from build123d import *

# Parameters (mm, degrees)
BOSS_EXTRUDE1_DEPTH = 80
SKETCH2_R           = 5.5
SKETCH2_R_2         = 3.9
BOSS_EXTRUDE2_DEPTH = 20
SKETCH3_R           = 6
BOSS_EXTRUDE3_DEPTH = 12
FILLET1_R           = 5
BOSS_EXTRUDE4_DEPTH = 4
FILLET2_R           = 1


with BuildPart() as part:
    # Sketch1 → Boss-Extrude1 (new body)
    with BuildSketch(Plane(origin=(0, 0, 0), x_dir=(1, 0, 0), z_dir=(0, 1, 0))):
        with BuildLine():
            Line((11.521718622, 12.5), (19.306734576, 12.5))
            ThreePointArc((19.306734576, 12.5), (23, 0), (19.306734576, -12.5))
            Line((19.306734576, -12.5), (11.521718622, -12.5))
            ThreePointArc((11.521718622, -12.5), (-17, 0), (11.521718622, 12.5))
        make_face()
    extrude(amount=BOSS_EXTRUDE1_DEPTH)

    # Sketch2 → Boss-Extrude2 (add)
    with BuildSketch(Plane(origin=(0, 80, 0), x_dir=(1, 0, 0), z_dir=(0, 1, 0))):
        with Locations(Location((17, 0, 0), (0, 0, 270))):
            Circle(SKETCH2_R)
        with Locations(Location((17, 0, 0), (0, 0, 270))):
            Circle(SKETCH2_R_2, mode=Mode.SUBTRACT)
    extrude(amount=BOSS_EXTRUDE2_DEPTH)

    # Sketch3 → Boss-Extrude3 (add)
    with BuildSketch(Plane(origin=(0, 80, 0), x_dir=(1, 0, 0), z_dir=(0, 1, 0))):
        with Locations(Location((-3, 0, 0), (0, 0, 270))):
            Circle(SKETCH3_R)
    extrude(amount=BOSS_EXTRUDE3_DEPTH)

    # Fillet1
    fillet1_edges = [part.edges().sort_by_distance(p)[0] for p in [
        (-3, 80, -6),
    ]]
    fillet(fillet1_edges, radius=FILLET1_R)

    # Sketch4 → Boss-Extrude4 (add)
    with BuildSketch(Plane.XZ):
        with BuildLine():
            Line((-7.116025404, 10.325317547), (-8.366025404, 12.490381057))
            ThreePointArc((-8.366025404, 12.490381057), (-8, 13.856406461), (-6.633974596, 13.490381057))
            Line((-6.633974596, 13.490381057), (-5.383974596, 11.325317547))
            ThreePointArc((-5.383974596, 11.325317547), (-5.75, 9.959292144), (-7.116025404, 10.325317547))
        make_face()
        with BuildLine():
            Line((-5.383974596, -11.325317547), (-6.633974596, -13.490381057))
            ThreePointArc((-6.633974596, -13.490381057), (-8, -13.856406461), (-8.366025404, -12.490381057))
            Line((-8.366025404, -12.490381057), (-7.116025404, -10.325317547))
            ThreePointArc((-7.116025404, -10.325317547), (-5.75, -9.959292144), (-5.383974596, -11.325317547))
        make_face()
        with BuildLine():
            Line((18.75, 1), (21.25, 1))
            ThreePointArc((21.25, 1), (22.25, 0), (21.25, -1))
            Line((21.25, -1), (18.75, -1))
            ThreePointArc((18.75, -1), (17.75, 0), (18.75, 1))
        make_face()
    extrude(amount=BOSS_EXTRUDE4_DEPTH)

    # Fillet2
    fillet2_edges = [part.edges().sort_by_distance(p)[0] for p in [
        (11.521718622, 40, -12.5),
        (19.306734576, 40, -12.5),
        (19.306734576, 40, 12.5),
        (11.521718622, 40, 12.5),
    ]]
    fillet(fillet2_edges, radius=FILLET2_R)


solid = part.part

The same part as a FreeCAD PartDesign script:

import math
import FreeCAD as App
import Part
import Sketcher
Q = App.Units.Quantity


def edges_at(feature, points):
    """Names of the edges that pass closest to the given points."""
    edges = feature.Shape.Edges
    near = lambda p: min(range(len(edges)), key=lambda i: edges[i].distToShape(Part.Vertex(*p))[0])
    return sorted({f"Edge{near(p) + 1}" for p in points})

doc = App.newDocument("Part")
body = doc.addObject("PartDesign::Body", "Body")

sketch1 = body.newObject("Sketcher::SketchObject", "Sketch")
sketch1.AttachmentSupport = (doc.getObject("XZ_Plane"), [""])
sketch1.MapMode = "FlatFace"
sketch1.addGeometry([
    Part.LineSegment(App.Vector(19, -12, 0), App.Vector(12, -12, 0)),
    Part.ArcOfCircle(Part.Circle(App.Vector(0, 0, 0), App.Vector(0, 0, 1), 17), math.radians(47), math.radians(313)),
    Part.LineSegment(App.Vector(12, 12, 0), App.Vector(19, 12, 0)),
    Part.ArcOfCircle(Part.Circle(App.Vector(0, 0, 0), App.Vector(0, 0, 1), 23), math.radians(-33), math.radians(33)),
], False)
sketch1.addConstraint([
    Sketcher.Constraint("Coincident", 0, 2, 1, 2),
    Sketcher.Constraint("Coincident", 1, 1, 2, 1),
    Sketcher.Constraint("Coincident", 2, 2, 3, 2),
    Sketcher.Constraint("Coincident", 3, 1, 0, 1),
    Sketcher.Constraint("Horizontal", 0),
    Sketcher.Constraint("Horizontal", 2),
    Sketcher.Constraint("Coincident", 1, 3, -1, 1),
    Sketcher.Constraint("Coincident", 3, 3, -1, 1),
    Sketcher.Constraint("Vertical", 0, 2, 1, 1),
    Sketcher.Constraint("Radius", 1, Q("17 mm")),
    Sketcher.Constraint("Radius", 3, Q("23 mm")),
    Sketcher.Constraint("DistanceY", 0, 2, 1, 1, Q("25 mm")),
])
pad1 = body.newObject("PartDesign::Pad", "Pad")
pad1.Profile = sketch1
pad1.Length = 80
pad1.Reversed = True

sketch2 = body.newObject("Sketcher::SketchObject", "Sketch001")
sketch2.AttachmentSupport = (doc.getObject("XZ_Plane"), [""])
sketch2.MapMode = "FlatFace"
sketch2.AttachmentOffset = App.Placement(App.Vector(0, 0, -80), App.Rotation())
sketch2.addGeometry([
    Part.Circle(App.Vector(17, 0, 0), App.Vector(0, 0, 1), 5.5),
    Part.Circle(App.Vector(17, 0, 0), App.Vector(0, 0, 1), 3.9),
], False)
sketch2.addConstraint([
    Sketcher.Constraint("Coincident", 1, 3, 0, 3),
    Sketcher.Constraint("PointOnObject", 0, 3, -1),
    Sketcher.Constraint("Diameter", 0, Q("11 mm")),
    Sketcher.Constraint("Diameter", 1, Q("7.8 mm")),
    Sketcher.Constraint("DistanceX", -1, 1, 0, 3, Q("17 mm")),
])
pad2 = body.newObject("PartDesign::Pad", "Pad001")
pad2.Profile = sketch2
pad2.Length = 20
pad2.Reversed = True

sketch3 = body.newObject("Sketcher::SketchObject", "Sketch002")
sketch3.AttachmentSupport = (doc.getObject("XZ_Plane"), [""])
sketch3.MapMode = "FlatFace"
sketch3.AttachmentOffset = App.Placement(App.Vector(0, 0, -80), App.Rotation())
sketch3.addGeometry(Part.Circle(App.Vector(-3, 0, 0), App.Vector(0, 0, 1), 6), False)
sketch3.addConstraint([
    Sketcher.Constraint("PointOnObject", 0, 3, -1),
    Sketcher.Constraint("Diameter", 0, Q("12 mm")),
    Sketcher.Constraint("DistanceX", 0, 3, -1, 1, Q("3 mm")),
])
pad3 = body.newObject("PartDesign::Pad", "Pad002")
pad3.Profile = sketch3
pad3.Length = 12
pad3.Reversed = True
doc.recompute()

fillet = body.newObject("PartDesign::Fillet", "Fillet")
fillet.Base = (pad3, edges_at(pad3, [(-3, 80, -6)]))
fillet.Radius = 5

sketch4 = body.newObject("Sketcher::SketchObject", "Sketch003")
sketch4.AttachmentSupport = (doc.getObject("XZ_Plane"), [""])
sketch4.MapMode = "FlatFace"
sketch4.addGeometry([
    Part.LineSegment(App.Vector(-8.4, 12.5, 0), App.Vector(-7.1, 10.3, 0)),
    Part.ArcOfCircle(Part.Circle(App.Vector(-6.2, 10.8, 0), App.Vector(0, 0, 1), 1), math.radians(-150), math.radians(30)),
    Part.LineSegment(App.Vector(-5.4, 11.3, 0), App.Vector(-6.6, 13.5, 0)),
    Part.ArcOfCircle(Part.Circle(App.Vector(-7.5, 13, 0), App.Vector(0, 0, 1), 1), math.radians(30), math.radians(210)),
    Part.LineSegment(App.Vector(-6.6, -13.5, 0), App.Vector(-5.4, -11.3, 0)),
    Part.ArcOfCircle(Part.Circle(App.Vector(-6.2, -10.8, 0), App.Vector(0, 0, 1), 1), math.radians(-30), math.radians(150)),
    Part.LineSegment(App.Vector(-7.1, -10.3, 0), App.Vector(-8.4, -12.5, 0)),
    Part.ArcOfCircle(Part.Circle(App.Vector(-7.5, -13, 0), App.Vector(0, 0, 1), 1), math.radians(150), math.radians(330)),
    Part.LineSegment(App.Vector(21.2, 1, 0), App.Vector(18.8, 1, 0)),
    Part.ArcOfCircle(Part.Circle(App.Vector(18.8, 0, 0), App.Vector(0, 0, 1), 1), math.radians(90), math.radians(270)),
    Part.LineSegment(App.Vector(18.8, -1, 0), App.Vector(21.2, -1, 0)),
    Part.ArcOfCircle(Part.Circle(App.Vector(21.2, 0, 0), App.Vector(0, 0, 1), 1), math.radians(-90), math.radians(90)),
], False)
sketch4.addConstraint([
    Sketcher.Constraint("Tangent", 0, 2, 1, 1),
    Sketcher.Constraint("Tangent", 1, 2, 2, 1),
    Sketcher.Constraint("Tangent", 2, 2, 3, 1),
    Sketcher.Constraint("Tangent", 3, 2, 0, 1),
    Sketcher.Constraint("Tangent", 4, 2, 5, 1),
    Sketcher.Constraint("Tangent", 5, 2, 6, 1),
    Sketcher.Constraint("Tangent", 6, 2, 7, 1),
    Sketcher.Constraint("Tangent", 7, 2, 4, 1),
    Sketcher.Constraint("Tangent", 8, 2, 9, 1),
    Sketcher.Constraint("Tangent", 9, 2, 10, 1),
    Sketcher.Constraint("Tangent", 10, 2, 11, 1),
    Sketcher.Constraint("Tangent", 11, 2, 8, 1),
    Sketcher.Constraint("Horizontal", 8),
    Sketcher.Constraint("Horizontal", 10),
    Sketcher.Constraint("Equal", 1, 3),
    Sketcher.Constraint("Equal", 3, 5),
    Sketcher.Constraint("Equal", 5, 7),
    Sketcher.Constraint("Equal", 7, 9),
    Sketcher.Constraint("Symmetric", 1, 3, 5, 3, -1),
    Sketcher.Constraint("Symmetric", 3, 3, 7, 3, -1),
    Sketcher.Constraint("PointOnObject", 9, 3, -1),
    Sketcher.Constraint("Radius", 1, Q("1 mm")),
    Sketcher.Constraint("Angle", 0, Q("-60 deg")),
    Sketcher.Constraint("DistanceX", 8, 2, 8, 1, Q("2.5 mm")),
    Sketcher.Constraint("DistanceX", 1, 3, 9, 3, Q("25 mm")),
    Sketcher.Constraint("Distance", 0, Q("2.5 mm")),
    Sketcher.Constraint("DistanceX", 3, 3, -1, 1, Q("7.5 mm")),
    Sketcher.Constraint("DistanceY", 5, 3, 3, 3, Q("23.815699 mm")),
])
pad4 = body.newObject("PartDesign::Pad", "Pad003")
pad4.Profile = sketch4
pad4.Length = 4
doc.recompute()

fillet2 = body.newObject("PartDesign::Fillet", "Fillet001")
fillet2.Base = (pad4, edges_at(pad4, [
    (11.522, 40, -12.5),
    (19.307, 40, -12.5),
    (19.307, 40, 12.5),
    (11.522, 40, 12.5),
]))
fillet2.Radius = 1

doc.recompute()
